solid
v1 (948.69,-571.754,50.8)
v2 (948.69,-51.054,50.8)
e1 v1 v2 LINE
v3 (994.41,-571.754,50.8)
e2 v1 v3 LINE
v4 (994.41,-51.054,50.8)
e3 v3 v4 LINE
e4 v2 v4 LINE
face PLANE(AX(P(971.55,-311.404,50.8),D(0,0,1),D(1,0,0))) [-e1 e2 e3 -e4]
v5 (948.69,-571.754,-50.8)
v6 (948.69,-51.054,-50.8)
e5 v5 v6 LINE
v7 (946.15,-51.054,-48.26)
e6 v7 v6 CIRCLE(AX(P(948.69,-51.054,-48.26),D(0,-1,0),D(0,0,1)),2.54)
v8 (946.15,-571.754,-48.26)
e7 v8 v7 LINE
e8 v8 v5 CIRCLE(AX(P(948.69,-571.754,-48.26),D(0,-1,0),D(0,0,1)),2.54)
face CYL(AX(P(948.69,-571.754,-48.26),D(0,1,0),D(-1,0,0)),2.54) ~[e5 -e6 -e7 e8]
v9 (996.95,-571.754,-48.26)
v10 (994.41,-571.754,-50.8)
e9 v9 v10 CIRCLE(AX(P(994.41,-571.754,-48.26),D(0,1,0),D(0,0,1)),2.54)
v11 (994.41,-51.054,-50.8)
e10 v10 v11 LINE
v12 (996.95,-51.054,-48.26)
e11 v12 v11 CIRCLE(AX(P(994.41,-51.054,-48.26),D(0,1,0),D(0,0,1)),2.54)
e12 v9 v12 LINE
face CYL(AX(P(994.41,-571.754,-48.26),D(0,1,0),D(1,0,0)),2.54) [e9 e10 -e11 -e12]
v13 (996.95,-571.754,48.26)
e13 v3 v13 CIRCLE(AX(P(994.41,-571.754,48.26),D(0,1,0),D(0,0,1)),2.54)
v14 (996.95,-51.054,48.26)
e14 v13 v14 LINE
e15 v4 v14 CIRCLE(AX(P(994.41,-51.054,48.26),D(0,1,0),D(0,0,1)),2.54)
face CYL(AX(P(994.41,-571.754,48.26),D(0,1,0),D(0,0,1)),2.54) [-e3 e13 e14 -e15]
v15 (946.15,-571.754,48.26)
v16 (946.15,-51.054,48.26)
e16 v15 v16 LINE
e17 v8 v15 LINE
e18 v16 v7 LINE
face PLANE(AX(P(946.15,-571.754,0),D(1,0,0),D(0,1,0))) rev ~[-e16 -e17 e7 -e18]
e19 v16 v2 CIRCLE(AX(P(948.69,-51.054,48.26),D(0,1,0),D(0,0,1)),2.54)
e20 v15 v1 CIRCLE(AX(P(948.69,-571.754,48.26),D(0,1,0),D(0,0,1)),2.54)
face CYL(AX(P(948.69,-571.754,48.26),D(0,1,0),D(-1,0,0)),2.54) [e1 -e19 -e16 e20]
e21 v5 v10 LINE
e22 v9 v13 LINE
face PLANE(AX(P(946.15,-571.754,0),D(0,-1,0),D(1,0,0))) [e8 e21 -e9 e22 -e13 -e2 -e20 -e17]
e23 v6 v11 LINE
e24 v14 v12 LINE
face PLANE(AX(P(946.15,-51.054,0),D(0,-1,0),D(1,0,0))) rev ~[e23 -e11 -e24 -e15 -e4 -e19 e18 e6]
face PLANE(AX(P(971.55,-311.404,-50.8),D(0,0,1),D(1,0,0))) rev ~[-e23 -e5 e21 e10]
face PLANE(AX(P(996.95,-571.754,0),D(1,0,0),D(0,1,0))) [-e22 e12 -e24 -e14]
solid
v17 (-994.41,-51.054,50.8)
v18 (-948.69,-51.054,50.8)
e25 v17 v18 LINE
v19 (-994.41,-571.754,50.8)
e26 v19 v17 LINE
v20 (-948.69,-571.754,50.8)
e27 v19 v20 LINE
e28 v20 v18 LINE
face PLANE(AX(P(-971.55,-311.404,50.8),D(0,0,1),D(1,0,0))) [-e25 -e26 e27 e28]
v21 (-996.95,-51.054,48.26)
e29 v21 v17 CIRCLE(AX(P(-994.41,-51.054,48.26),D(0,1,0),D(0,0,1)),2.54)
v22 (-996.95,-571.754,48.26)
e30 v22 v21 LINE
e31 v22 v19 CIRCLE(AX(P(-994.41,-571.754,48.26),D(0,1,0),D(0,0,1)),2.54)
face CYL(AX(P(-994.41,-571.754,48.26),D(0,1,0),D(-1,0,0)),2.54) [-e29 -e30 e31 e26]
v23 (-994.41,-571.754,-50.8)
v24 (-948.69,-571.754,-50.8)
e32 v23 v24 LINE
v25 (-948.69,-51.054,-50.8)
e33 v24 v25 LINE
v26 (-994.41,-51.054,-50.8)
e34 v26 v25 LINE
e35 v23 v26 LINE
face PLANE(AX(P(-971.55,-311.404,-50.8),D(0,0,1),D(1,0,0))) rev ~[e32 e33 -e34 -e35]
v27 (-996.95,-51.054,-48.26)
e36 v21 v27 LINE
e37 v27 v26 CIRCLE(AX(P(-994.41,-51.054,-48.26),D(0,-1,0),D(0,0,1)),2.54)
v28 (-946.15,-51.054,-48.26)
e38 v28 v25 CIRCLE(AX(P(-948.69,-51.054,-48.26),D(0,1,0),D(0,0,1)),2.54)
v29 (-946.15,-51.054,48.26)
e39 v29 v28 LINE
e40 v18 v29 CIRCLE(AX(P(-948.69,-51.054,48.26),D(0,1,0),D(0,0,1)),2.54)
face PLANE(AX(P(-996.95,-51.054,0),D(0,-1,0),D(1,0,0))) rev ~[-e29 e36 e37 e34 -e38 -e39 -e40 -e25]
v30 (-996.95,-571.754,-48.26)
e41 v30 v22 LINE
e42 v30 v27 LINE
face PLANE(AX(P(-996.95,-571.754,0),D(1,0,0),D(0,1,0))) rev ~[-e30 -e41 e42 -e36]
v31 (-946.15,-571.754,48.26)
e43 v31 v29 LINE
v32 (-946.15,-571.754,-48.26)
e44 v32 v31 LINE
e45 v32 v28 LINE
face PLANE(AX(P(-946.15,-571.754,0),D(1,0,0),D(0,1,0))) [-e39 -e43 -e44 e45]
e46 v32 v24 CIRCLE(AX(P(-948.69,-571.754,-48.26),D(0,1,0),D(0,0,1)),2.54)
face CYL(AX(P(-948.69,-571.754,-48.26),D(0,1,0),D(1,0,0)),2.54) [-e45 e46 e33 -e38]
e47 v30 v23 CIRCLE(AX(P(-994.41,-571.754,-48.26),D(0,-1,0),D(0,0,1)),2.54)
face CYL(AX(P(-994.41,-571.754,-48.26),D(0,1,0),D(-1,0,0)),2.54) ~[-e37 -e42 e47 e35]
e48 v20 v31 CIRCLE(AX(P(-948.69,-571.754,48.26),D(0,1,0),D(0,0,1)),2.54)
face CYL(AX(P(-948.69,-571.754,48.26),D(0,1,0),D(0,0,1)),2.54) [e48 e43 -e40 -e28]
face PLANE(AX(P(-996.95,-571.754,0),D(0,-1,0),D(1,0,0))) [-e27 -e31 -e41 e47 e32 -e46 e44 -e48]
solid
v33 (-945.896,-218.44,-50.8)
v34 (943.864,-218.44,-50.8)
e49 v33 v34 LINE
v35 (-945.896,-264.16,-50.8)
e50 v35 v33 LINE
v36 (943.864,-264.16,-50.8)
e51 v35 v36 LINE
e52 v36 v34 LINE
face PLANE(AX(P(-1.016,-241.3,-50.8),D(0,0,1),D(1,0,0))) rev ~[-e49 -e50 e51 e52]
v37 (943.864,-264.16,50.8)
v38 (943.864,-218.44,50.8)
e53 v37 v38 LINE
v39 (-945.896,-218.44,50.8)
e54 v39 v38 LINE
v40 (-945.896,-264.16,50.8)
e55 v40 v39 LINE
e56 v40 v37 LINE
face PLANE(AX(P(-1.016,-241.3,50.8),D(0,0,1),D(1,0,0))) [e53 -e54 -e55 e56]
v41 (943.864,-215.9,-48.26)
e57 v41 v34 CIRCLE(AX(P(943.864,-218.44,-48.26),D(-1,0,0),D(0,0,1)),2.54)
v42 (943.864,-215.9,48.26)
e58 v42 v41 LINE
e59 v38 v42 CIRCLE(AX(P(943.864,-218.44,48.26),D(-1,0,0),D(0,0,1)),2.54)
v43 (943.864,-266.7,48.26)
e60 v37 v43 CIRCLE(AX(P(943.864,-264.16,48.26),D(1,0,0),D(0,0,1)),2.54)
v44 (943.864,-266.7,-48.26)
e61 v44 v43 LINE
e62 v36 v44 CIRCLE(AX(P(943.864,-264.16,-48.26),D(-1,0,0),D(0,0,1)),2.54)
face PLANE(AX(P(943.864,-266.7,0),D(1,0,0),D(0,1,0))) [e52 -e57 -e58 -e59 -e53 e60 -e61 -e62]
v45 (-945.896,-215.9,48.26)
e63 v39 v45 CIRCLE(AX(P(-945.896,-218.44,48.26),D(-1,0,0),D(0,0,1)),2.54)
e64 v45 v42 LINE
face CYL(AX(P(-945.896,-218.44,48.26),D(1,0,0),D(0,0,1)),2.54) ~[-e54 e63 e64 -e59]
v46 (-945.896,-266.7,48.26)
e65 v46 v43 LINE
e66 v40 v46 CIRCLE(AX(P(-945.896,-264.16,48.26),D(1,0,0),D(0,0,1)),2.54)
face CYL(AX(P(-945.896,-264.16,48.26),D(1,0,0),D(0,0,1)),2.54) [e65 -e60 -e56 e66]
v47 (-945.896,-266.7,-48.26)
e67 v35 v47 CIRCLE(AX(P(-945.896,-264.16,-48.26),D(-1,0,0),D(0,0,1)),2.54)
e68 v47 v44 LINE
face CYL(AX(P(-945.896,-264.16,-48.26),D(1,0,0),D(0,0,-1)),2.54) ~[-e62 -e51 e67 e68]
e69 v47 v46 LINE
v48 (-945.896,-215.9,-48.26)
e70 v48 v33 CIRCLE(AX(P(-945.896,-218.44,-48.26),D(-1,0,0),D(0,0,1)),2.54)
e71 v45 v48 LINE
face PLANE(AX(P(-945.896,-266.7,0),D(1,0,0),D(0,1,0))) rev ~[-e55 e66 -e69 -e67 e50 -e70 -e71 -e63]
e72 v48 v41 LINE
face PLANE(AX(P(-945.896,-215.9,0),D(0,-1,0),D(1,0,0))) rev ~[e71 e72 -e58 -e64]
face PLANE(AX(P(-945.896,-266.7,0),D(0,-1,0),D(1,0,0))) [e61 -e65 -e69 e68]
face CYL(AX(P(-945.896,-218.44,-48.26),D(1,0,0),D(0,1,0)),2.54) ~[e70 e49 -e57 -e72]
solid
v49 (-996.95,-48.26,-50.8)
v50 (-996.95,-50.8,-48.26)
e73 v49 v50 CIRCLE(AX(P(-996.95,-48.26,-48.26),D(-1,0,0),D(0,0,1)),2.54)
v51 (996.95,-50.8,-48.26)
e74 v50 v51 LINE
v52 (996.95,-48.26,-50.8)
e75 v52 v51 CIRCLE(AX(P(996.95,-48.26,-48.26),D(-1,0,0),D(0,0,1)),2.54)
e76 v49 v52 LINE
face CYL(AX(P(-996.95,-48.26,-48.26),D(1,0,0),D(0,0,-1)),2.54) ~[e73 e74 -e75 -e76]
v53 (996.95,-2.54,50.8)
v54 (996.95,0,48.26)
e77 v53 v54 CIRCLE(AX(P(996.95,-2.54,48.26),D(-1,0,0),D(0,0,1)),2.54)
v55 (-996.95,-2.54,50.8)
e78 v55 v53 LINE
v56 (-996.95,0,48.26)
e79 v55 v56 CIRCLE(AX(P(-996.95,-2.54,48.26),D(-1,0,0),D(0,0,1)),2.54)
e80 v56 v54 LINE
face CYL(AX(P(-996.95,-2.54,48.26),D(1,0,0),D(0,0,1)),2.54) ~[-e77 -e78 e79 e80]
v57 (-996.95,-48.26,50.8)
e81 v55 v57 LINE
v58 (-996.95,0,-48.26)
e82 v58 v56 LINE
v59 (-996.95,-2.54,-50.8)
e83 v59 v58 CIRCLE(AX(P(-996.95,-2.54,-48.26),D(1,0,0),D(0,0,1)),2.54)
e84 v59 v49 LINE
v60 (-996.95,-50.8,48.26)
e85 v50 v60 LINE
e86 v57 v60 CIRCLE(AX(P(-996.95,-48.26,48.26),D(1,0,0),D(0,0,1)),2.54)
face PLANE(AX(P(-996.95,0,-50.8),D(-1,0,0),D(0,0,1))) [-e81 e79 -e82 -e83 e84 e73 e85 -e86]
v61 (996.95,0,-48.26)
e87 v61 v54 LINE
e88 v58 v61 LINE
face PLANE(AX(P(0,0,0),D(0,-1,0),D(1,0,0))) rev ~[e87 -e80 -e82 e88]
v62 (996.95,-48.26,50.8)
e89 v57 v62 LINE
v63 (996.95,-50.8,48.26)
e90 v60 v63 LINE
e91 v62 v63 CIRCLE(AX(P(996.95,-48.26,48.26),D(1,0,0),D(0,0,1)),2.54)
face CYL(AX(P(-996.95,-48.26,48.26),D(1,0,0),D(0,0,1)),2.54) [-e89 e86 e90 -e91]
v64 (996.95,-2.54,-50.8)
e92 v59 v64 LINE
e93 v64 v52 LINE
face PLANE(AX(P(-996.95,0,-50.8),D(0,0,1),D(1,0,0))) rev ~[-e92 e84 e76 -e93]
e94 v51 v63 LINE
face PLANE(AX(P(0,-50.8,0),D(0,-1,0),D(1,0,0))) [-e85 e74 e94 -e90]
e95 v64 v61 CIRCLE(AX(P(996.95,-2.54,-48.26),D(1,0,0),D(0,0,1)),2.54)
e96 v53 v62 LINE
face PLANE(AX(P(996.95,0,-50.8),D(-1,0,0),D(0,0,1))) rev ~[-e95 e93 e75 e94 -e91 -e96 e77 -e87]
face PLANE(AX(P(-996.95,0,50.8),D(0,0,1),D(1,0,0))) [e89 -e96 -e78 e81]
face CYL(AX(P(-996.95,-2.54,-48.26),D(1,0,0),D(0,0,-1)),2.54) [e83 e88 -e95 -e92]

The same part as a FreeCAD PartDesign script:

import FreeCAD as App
import Part
import Sketcher

V = App.Vector
Q = App.Units.Quantity


def edges_at(feature, points):
    """Names of the edges that pass closest to the given points."""
    edges = feature.Shape.Edges
    near = lambda p: min(range(len(edges)), key=lambda i: edges[i].distToShape(Part.Vertex(*p))[0])
    return sorted({f"Edge{near(p) + 1}" for p in points})


def add_polygon(sketch, points):
    """Adds a closed chain of lines whose ends are joined by coincident constraints."""
    first, n = sketch.GeometryCount, len(points)
    for a, b in zip(points, points[1:] + points[:1]):
        sketch.addGeometry(Part.LineSegment(App.Vector(*a, 0), App.Vector(*b, 0)), False)
    for i in range(n):
        sketch.addConstraint(Sketcher.Constraint("Coincident", first + i, 2, first + (i + 1) % n, 1))

doc = App.newDocument("Part")
body = doc.addObject("PartDesign::Body", "Body")

sketch1 = body.newObject("Sketcher::SketchObject", "Sketch")
sketch1.AttachmentSupport = (doc.getObject("XZ_Plane"), [""])
sketch1.MapMode = "FlatFace"
add_polygon(sketch1, [(-997, 51), (-997, -51), (997, -51), (997, 51)])
sketch1.addConstraint(Sketcher.Constraint("Vertical", 0))
sketch1.addConstraint(Sketcher.Constraint("Horizontal", 1))
sketch1.addConstraint(Sketcher.Constraint("Vertical", 2))
sketch1.addConstraint(Sketcher.Constraint("Horizontal", 3))
sketch1.addConstraint(Sketcher.Constraint("Symmetric", 0, 2, 2, 2, -1, 1))
sketch1.addConstraint(Sketcher.Constraint("DistanceY", 0, 2, 0, 1, Q("4 in")))
sketch1.addConstraint(Sketcher.Constraint("DistanceX", 1, 1, 1, 2, Q("78.5 in")))
pad1 = body.newObject("PartDesign::Pad", "Pad")
pad1.Profile = sketch1
pad1.Length = Q("2 in")
doc.recompute()

fillet = body.newObject("PartDesign::Fillet", "Fillet")
fillet.Base = (pad1, edges_at(pad1, [
    (0, 0, -50.8),
    (0, 0, 50.8),
    (0, -50.8, -50.8),
    (0, -50.8, 50.8),
]))
fillet.Radius = Q("0.1 in")
body2 = doc.addObject("PartDesign::Body", "Body001")

sketch2 = body2.newObject("Sketcher::SketchObject", "Sketch001")
sketch2.AttachmentSupport = (doc.getObject("XY_Plane001"), [""])
sketch2.MapMode = "FlatFace"
add_polygon(sketch2, [(-997, -51), (-997, -572), (-946, -572), (-946, -51)])
sketch2.addConstraint(Sketcher.Constraint("Vertical", 0))
sketch2.addConstraint(Sketcher.Constraint("Horizontal", 1))
sketch2.addConstraint(Sketcher.Constraint("Vertical", 2))
sketch2.addConstraint(Sketcher.Constraint("Horizontal", 3))
sketch2.addConstraint(Sketcher.Constraint("DistanceX", 1, 1, 1, 2, Q("2 in")))
sketch2.addConstraint(Sketcher.Constraint("DistanceY", 0, 2, 0, 1, Q("20.5 in")))
sketch2.addConstraint(Sketcher.Constraint("DistanceX", 0, 2, -1, 1, Q("39.25 in")))
sketch2.addConstraint(Sketcher.Constraint("DistanceY", 0, 2, -1, 1, Q("22.51 in")))
pad2 = body2.newObject("PartDesign::Pad", "Pad001")
pad2.Profile = sketch2
pad2.Length = Q("4 in")
pad2.Midplane = True
doc.recompute()

fillet2 = body2.newObject("PartDesign::Fillet", "Fillet001")
fillet2.Base = (pad2, edges_at(pad2, [
    (-996.95, -311.404, 50.8),
    (-946.15, -311.404, 50.8),
    (-996.95, -311.404, -50.8),
    (-946.15, -311.404, -50.8),
]))
fillet2.Radius = Q("0.1 in")
body3 = doc.addObject("PartDesign::Body", "Body002")

sketch3 = body3.newObject("Sketcher::SketchObject", "Sketch002")
sketch3.AttachmentSupport = (doc.getObject("XY_Plane002"), [""])
sketch3.MapMode = "FlatFace"
add_polygon(sketch3, [(946, -51), (946, -572), (997, -572), (997, -51)])
sketch3.addConstraint(Sketcher.Constraint("Vertical", 0))
sketch3.addConstraint(Sketcher.Constraint("Horizontal", 1))
sketch3.addConstraint(Sketcher.Constraint("Vertical", 2))
sketch3.addConstraint(Sketcher.Constraint("Horizontal", 3))
sketch3.addConstraint(Sketcher.Constraint("DistanceX", 1, 1, 1, 2, Q("2 in")))
sketch3.addConstraint(Sketcher.Constraint("DistanceY", 0, 2, 0, 1, Q("20.5 in")))
sketch3.addConstraint(Sketcher.Constraint("DistanceX", -1, 1, 0, 2, Q("37.25 in")))
sketch3.addConstraint(Sketcher.Constraint("DistanceY", 0, 2, -1, 1, Q("22.51 in")))
pad3 = body3.newObject("PartDesign::Pad", "Pad002")
pad3.Profile = sketch3
pad3.Length = Q("4 in")
pad3.Midplane = True
doc.recompute()

fillet3 = body3.newObject("PartDesign::Fillet", "Fillet002")
fillet3.Base = (pad3, edges_at(pad3, [
    (946.15, -311.404, -50.8),
    (946.15, -311.404, 50.8),
    (996.95, -311.404, 50.8),
    (996.95, -311.404, -50.8),
]))
fillet3.Radius = Q("0.1 in")
body4 = doc.addObject("PartDesign::Body", "Body003")

sketch4 = body4.newObject("Sketcher::SketchObject", "Sketch003")
sketch4.AttachmentSupport = (doc.getObject("XY_Plane003"), [""])
sketch4.MapMode = "FlatFace"
add_polygon(sketch4, [(-946, -216), (-946, -267), (944, -267), (944, -216)])
sketch4.addConstraint(Sketcher.Constraint("Vertical", 0))
sketch4.addConstraint(Sketcher.Constraint("Horizontal", 1))
sketch4.addConstraint(Sketcher.Constraint("Vertical", 2))
sketch4.addConstraint(Sketcher.Constraint("Horizontal", 3))
sketch4.addConstraint(Sketcher.Constraint("DistanceY", 0, 2, 0, 1, Q("2 in")))
sketch4.addConstraint(Sketcher.Constraint("DistanceX", 1, 1, 1, 2, Q("74.4 in")))
sketch4.addConstraint(Sketcher.Constraint("DistanceY", 0, 2, -1, 1, Q("10.5 in")))
sketch4.addConstraint(Sketcher.Constraint("DistanceX", 0, 2, -1, 1, Q("37.24 in")))
pad4 = body4.newObject("PartDesign::Pad", "Pad003")
pad4.Profile = sketch4
pad4.Length = Q("4 in")
pad4.Midplane = True
doc.recompute()

fillet4 = body4.newObject("PartDesign::Fillet", "Fillet003")
fillet4.Base = (pad4, edges_at(pad4, [
    (-1.016, -215.9, 50.8),
    (-1.016, -266.7, 50.8),
    (-1.016, -266.7, -50.8),
    (-1.016, -215.9, -50.8),
]))
fillet4.Radius = Q("0.1 in")

doc.recompute()
